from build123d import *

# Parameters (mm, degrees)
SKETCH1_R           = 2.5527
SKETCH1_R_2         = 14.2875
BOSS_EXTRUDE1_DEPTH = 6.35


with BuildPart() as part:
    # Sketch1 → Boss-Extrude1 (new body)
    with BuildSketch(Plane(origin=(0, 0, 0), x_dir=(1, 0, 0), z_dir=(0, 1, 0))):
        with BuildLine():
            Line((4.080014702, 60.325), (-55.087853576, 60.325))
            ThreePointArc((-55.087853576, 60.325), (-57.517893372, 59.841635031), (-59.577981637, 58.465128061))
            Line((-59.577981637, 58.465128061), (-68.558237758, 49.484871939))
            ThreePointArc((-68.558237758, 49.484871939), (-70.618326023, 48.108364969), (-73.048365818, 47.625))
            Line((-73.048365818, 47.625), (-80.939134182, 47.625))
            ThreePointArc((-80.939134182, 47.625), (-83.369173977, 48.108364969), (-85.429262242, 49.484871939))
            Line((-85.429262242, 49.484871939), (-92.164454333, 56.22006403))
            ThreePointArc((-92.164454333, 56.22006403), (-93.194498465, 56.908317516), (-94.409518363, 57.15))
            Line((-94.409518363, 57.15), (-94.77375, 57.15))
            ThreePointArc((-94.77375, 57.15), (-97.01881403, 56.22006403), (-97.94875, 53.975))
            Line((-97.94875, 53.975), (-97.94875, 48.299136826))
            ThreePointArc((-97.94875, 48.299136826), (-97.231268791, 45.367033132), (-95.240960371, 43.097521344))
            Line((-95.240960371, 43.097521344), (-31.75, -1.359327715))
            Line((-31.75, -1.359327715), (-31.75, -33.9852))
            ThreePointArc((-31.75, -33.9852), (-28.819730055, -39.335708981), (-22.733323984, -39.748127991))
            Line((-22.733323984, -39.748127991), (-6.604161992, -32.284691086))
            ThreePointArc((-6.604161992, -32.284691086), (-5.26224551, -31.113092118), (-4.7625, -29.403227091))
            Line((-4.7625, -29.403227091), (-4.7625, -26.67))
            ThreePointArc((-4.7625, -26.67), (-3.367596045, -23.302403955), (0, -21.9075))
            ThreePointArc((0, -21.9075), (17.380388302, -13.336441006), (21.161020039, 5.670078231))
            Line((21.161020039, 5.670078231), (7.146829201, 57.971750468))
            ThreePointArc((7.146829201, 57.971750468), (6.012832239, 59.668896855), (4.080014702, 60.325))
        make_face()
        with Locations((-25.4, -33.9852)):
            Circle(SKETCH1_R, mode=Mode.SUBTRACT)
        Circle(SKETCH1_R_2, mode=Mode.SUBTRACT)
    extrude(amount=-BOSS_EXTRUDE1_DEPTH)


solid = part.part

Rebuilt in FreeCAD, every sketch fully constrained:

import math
import FreeCAD as App
import Part
import Sketcher
from FreeCAD import Vector
Q = App.Units.Quantity

doc = App.newDocument("Part")
params = doc.addObject("Spreadsheet::Sheet", "Params")
for row, (alias, value) in enumerate([
    ("sketch1_radius", "0.25 in"),
    ("sketch1_diameter", "0.201 in"),
    ("sketch1_diameter2", "1.125 in"),
    ("sketch1_radius2", "0.1875 in"),
    ("pad1_length", "0.25 in"),
], start=1):
    params.set(f"A{row}", alias)
    params.set(f"B{row}", "=" + value)
    params.setAlias(f"B{row}", alias)

body = doc.addObject("PartDesign::Body", "Body")

sketch1 = body.newObject("Sketcher::SketchObject", "Sketch")
sketch1.AttachmentSupport = (doc.getObject("XZ_Plane"), [""])
sketch1.MapMode = "FlatFace"
sketch1.addGeometry(Part.LineSegment(Vector(4.080015, -60.325, 0), Vector(-55.087854, -60.325, 0)), False)
sketch1.addGeometry(Part.ArcOfCircle(Part.Circle(Vector(-55.087854, -53.975, 0), Vector(0, 0, 1), 6.35), math.radians(-135), math.radians(-90)), False)
sketch1.addGeometry(Part.LineSegment(Vector(-59.577982, -58.465128, 0), Vector(-68.558238, -49.484872, 0)), False)
sketch1.addGeometry(Part.ArcOfCircle(Part.Circle(Vector(-73.048366, -53.975, 0), Vector(0, 0, 1), 6.35), math.radians(45), math.radians(90)), False)
sketch1.addGeometry(Part.LineSegment(Vector(-73.048366, -47.625, 0), Vector(-80.939134, -47.625, 0)), False)
sketch1.addGeometry(Part.ArcOfCircle(Part.Circle(Vector(-80.939134, -53.975, 0), Vector(0, 0, 1), 6.35), math.radians(90), math.radians(135)), False)
sketch1.addGeometry(Part.LineSegment(Vector(-85.429262, -49.484872, 0), Vector(-92.164454, -56.220064, 0)), False)
sketch1.addGeometry(Part.ArcOfCircle(Part.Circle(Vector(-94.409518, -53.975, 0), Vector(0, 0, 1), 3.175), math.radians(-90), math.radians(-45)), False)
sketch1.addGeometry(Part.LineSegment(Vector(-94.409518, -57.15, 0), Vector(-94.77375, -57.15, 0)), False)
sketch1.addGeometry(Part.ArcOfCircle(Part.Circle(Vector(-94.77375, -53.975, 0), Vector(0, 0, 1), 3.175), math.radians(-180), math.radians(-90)), False)
sketch1.addGeometry(Part.LineSegment(Vector(-97.94875, -53.975, 0), Vector(-97.94875, -48.299137, 0)), False)
sketch1.addGeometry(Part.ArcOfCircle(Part.Circle(Vector(-91.59875, -48.299137, 0), Vector(0, 0, 1), 6.35), math.radians(125), math.radians(180)), False)
sketch1.addGeometry(Part.LineSegment(Vector(-95.24096, -43.097521, 0), Vector(-31.75, 1.359328, 0)), False)
sketch1.addGeometry(Part.LineSegment(Vector(-31.75, 1.359328, 0), Vector(-31.75, 33.9852, 0)), False)
sketch1.addGeometry(Part.ArcOfCircle(Part.Circle(Vector(-25.4, 33.9852, 0), Vector(0, 0, 1), 6.35), math.radians(65.168634), math.radians(180)), False)
sketch1.addGeometry(Part.LineSegment(Vector(-22.733324, 39.748128, 0), Vector(-6.604162, 32.284691, 0)), False)
sketch1.addGeometry(Part.ArcOfCircle(Part.Circle(Vector(-7.9375, 29.403227, 0), Vector(0, 0, 1), 3.175), math.radians(0), math.radians(65.168634)), False)
sketch1.addGeometry(Part.LineSegment(Vector(-4.7625, 29.403227, 0), Vector(-4.7625, 26.67, 0)), False)
sketch1.addGeometry(Part.ArcOfCircle(Part.Circle(Vector(0, 26.67, 0), Vector(0, 0, 1), 4.7625), math.radians(-180), math.radians(-90)), False)
sketch1.addGeometry(Part.ArcOfCircle(Part.Circle(Vector(0, 0, 0), Vector(0, 0, 1), 21.9075), math.radians(-15), math.radians(90)), False)
sketch1.addGeometry(Part.LineSegment(Vector(21.16102, -5.670078, 0), Vector(7.146829, -57.97175, 0)), False)
sketch1.addGeometry(Part.ArcOfCircle(Part.Circle(Vector(4.080015, -57.15, 0), Vector(0, 0, 1), 3.175), math.radians(-90), math.radians(-15)), False)
sketch1.addGeometry(Part.Circle(Vector(-25.4, 33.9852, 0), Vector(0, 0, 1), 2.5527), False)
sketch1.addGeometry(Part.Circle(Vector(0, 0, 0), Vector(0, 0, 1), 14.2875), False)
sketch1.addConstraint(Sketcher.Constraint("Tangent", 0, 2, 1, 2))
sketch1.addConstraint(Sketcher.Constraint("Tangent", 1, 1, 2, 1))
sketch1.addConstraint(Sketcher.Constraint("Tangent", 2, 2, 3, 1))
sketch1.addConstraint(Sketcher.Constraint("Tangent", 3, 2, 4, 1))
sketch1.addConstraint(Sketcher.Constraint("Tangent", 4, 2, 5, 1))
sketch1.addConstraint(Sketcher.Constraint("Tangent", 5, 2, 6, 1))
sketch1.addConstraint(Sketcher.Constraint("Tangent", 6, 2, 7, 2))
sketch1.addConstraint(Sketcher.Constraint("Tangent", 7, 1, 8, 1))
sketch1.addConstraint(Sketcher.Constraint("Tangent", 8, 2, 9, 2))
sketch1.addConstraint(Sketcher.Constraint("Tangent", 9, 1, 10, 1))
sketch1.addConstraint(Sketcher.Constraint("Tangent", 10, 2, 11, 2))
sketch1.addConstraint(Sketcher.Constraint("Tangent", 11, 1, 12, 1))
sketch1.addConstraint(Sketcher.Constraint("Coincident", 12, 2, 13, 1))
sketch1.addConstraint(Sketcher.Constraint("Tangent", 13, 2, 14, 2))
sketch1.addConstraint(Sketcher.Constraint("Tangent", 14, 1, 15, 1))
sketch1.addConstraint(Sketcher.Constraint("Tangent", 15, 2, 16, 2))
sketch1.addConstraint(Sketcher.Constraint("Tangent", 16, 1, 17, 1))
sketch1.addConstraint(Sketcher.Constraint("Tangent", 17, 2, 18, 1))
sketch1.addConstraint(Sketcher.Constraint("Tangent", 18, 2, 19, 2))
sketch1.addConstraint(Sketcher.Constraint("Tangent", 19, 1, 20, 1))
sketch1.addConstraint(Sketcher.Constraint("Tangent", 20, 2, 21, 2))
sketch1.addConstraint(Sketcher.Constraint("Tangent", 21, 1, 0, 1))
sketch1.addConstraint(Sketcher.Constraint("Horizontal", 0))
sketch1.addConstraint(Sketcher.Constraint("Horizontal", 4))
sketch1.addConstraint(Sketcher.Constraint("Horizontal", 8))
sketch1.addConstraint(Sketcher.Constraint("Vertical", 10))
sketch1.addConstraint(Sketcher.Constraint("Vertical", 13))
sketch1.addConstraint(Sketcher.Constraint("Vertical", 17))
sketch1.addConstraint(Sketcher.Constraint("Coincident", 19, 3, -1, 1))
sketch1.addConstraint(Sketcher.Constraint("Coincident", 23, 3, -1, 1))
sketch1.addConstraint(Sketcher.Constraint("Coincident", 22, 3, 14, 3))
sketch1.addConstraint(Sketcher.Constraint("Equal", 1, 3))
sketch1.addConstraint(Sketcher.Constraint("Equal", 3, 5))
sketch1.addConstraint(Sketcher.Constraint("Equal", 7, 9))
sketch1.addConstraint(Sketcher.Constraint("Equal", 5, 11))
sketch1.addConstraint(Sketcher.Constraint("Equal", 11, 14))
sketch1.addConstraint(Sketcher.Constraint("Equal", 9, 16))
sketch1.addConstraint(Sketcher.Constraint("Equal", 16, 21))
sketch1.addConstraint(Sketcher.Constraint("PointOnObject", 18, 3, -2))
sketch1.addConstraint(Sketcher.Constraint("Perpendicular", 2, 6))
sketch1.addConstraint(Sketcher.Constraint("Horizontal", 1, 3, 3, 3))
sketch1.addConstraint(Sketcher.Constraint("Horizontal", 5, 3, 7, 3))
sketch1.addConstraint(Sketcher.Constraint("Horizontal", 2, 2, 5, 2))
sketch1.addConstraint(Sketcher.Constraint("Horizontal", 21, 3, 7, 1))
sketch1.addConstraint(Sketcher.Constraint("Radius", 1, Q("0.25 in")))
sketch1.addConstraint(Sketcher.Constraint("Diameter", 22, Q("0.201 in")))
sketch1.addConstraint(Sketcher.Constraint("Diameter", 23, Q("1.125 in")))
sketch1.addConstraint(Sketcher.Constraint("DistanceX", 14, 3, -1, 1, Q("1 in")))
sketch1.addConstraint(Sketcher.Constraint("Angle", 12, Q("35 deg")))
sketch1.addConstraint(Sketcher.Constraint("Angle", 20, Q("-105 deg")))
sketch1.addConstraint(Sketcher.Constraint("Radius", 18, Q("0.1875 in")))
sketch1.addConstraint(Sketcher.Constraint("Radius", 19, Q("0.8625 in")))
sketch1.addConstraint(Sketcher.Constraint("DistanceY", 21, 3, 18, 3, Q("3.3 in")))
sketch1.addConstraint(Sketcher.Constraint("DistanceY", -1, 1, 14, 3, Q("1.338 in")))
sketch1.addConstraint(Sketcher.Constraint("DistanceX", 0, 2, 0, 1, Q("59.167868 mm")))
sketch1.addConstraint(Sketcher.Constraint("DistanceX", 4, 2, 4, 1, Q("7.890768 mm")))
sketch1.addConstraint(Sketcher.Constraint("DistanceX", 8, 2, 8, 1, Q("0.364232 mm")))
sketch1.addConstraint(Sketcher.Constraint("DistanceY", 12, 2, 16, 3, Q("28.043899 mm")))
sketch1.addConstraint(Sketcher.Constraint("DistanceY", 16, 3, 14, 1, Q("10.344901 mm")))
sketch1.setExpression("Constraints[44]", "Params.sketch1_radius")
sketch1.setExpression("Constraints[45]", "Params.sketch1_diameter")
sketch1.setExpression("Constraints[46]", "Params.sketch1_diameter2")
sketch1.setExpression("Constraints[50]", "Params.sketch1_radius2")
pad1 = body.newObject("PartDesign::Pad", "Pad")
pad1.Profile = sketch1
pad1.setExpression("Length", "Params.pad1_length")

doc.recompute()
